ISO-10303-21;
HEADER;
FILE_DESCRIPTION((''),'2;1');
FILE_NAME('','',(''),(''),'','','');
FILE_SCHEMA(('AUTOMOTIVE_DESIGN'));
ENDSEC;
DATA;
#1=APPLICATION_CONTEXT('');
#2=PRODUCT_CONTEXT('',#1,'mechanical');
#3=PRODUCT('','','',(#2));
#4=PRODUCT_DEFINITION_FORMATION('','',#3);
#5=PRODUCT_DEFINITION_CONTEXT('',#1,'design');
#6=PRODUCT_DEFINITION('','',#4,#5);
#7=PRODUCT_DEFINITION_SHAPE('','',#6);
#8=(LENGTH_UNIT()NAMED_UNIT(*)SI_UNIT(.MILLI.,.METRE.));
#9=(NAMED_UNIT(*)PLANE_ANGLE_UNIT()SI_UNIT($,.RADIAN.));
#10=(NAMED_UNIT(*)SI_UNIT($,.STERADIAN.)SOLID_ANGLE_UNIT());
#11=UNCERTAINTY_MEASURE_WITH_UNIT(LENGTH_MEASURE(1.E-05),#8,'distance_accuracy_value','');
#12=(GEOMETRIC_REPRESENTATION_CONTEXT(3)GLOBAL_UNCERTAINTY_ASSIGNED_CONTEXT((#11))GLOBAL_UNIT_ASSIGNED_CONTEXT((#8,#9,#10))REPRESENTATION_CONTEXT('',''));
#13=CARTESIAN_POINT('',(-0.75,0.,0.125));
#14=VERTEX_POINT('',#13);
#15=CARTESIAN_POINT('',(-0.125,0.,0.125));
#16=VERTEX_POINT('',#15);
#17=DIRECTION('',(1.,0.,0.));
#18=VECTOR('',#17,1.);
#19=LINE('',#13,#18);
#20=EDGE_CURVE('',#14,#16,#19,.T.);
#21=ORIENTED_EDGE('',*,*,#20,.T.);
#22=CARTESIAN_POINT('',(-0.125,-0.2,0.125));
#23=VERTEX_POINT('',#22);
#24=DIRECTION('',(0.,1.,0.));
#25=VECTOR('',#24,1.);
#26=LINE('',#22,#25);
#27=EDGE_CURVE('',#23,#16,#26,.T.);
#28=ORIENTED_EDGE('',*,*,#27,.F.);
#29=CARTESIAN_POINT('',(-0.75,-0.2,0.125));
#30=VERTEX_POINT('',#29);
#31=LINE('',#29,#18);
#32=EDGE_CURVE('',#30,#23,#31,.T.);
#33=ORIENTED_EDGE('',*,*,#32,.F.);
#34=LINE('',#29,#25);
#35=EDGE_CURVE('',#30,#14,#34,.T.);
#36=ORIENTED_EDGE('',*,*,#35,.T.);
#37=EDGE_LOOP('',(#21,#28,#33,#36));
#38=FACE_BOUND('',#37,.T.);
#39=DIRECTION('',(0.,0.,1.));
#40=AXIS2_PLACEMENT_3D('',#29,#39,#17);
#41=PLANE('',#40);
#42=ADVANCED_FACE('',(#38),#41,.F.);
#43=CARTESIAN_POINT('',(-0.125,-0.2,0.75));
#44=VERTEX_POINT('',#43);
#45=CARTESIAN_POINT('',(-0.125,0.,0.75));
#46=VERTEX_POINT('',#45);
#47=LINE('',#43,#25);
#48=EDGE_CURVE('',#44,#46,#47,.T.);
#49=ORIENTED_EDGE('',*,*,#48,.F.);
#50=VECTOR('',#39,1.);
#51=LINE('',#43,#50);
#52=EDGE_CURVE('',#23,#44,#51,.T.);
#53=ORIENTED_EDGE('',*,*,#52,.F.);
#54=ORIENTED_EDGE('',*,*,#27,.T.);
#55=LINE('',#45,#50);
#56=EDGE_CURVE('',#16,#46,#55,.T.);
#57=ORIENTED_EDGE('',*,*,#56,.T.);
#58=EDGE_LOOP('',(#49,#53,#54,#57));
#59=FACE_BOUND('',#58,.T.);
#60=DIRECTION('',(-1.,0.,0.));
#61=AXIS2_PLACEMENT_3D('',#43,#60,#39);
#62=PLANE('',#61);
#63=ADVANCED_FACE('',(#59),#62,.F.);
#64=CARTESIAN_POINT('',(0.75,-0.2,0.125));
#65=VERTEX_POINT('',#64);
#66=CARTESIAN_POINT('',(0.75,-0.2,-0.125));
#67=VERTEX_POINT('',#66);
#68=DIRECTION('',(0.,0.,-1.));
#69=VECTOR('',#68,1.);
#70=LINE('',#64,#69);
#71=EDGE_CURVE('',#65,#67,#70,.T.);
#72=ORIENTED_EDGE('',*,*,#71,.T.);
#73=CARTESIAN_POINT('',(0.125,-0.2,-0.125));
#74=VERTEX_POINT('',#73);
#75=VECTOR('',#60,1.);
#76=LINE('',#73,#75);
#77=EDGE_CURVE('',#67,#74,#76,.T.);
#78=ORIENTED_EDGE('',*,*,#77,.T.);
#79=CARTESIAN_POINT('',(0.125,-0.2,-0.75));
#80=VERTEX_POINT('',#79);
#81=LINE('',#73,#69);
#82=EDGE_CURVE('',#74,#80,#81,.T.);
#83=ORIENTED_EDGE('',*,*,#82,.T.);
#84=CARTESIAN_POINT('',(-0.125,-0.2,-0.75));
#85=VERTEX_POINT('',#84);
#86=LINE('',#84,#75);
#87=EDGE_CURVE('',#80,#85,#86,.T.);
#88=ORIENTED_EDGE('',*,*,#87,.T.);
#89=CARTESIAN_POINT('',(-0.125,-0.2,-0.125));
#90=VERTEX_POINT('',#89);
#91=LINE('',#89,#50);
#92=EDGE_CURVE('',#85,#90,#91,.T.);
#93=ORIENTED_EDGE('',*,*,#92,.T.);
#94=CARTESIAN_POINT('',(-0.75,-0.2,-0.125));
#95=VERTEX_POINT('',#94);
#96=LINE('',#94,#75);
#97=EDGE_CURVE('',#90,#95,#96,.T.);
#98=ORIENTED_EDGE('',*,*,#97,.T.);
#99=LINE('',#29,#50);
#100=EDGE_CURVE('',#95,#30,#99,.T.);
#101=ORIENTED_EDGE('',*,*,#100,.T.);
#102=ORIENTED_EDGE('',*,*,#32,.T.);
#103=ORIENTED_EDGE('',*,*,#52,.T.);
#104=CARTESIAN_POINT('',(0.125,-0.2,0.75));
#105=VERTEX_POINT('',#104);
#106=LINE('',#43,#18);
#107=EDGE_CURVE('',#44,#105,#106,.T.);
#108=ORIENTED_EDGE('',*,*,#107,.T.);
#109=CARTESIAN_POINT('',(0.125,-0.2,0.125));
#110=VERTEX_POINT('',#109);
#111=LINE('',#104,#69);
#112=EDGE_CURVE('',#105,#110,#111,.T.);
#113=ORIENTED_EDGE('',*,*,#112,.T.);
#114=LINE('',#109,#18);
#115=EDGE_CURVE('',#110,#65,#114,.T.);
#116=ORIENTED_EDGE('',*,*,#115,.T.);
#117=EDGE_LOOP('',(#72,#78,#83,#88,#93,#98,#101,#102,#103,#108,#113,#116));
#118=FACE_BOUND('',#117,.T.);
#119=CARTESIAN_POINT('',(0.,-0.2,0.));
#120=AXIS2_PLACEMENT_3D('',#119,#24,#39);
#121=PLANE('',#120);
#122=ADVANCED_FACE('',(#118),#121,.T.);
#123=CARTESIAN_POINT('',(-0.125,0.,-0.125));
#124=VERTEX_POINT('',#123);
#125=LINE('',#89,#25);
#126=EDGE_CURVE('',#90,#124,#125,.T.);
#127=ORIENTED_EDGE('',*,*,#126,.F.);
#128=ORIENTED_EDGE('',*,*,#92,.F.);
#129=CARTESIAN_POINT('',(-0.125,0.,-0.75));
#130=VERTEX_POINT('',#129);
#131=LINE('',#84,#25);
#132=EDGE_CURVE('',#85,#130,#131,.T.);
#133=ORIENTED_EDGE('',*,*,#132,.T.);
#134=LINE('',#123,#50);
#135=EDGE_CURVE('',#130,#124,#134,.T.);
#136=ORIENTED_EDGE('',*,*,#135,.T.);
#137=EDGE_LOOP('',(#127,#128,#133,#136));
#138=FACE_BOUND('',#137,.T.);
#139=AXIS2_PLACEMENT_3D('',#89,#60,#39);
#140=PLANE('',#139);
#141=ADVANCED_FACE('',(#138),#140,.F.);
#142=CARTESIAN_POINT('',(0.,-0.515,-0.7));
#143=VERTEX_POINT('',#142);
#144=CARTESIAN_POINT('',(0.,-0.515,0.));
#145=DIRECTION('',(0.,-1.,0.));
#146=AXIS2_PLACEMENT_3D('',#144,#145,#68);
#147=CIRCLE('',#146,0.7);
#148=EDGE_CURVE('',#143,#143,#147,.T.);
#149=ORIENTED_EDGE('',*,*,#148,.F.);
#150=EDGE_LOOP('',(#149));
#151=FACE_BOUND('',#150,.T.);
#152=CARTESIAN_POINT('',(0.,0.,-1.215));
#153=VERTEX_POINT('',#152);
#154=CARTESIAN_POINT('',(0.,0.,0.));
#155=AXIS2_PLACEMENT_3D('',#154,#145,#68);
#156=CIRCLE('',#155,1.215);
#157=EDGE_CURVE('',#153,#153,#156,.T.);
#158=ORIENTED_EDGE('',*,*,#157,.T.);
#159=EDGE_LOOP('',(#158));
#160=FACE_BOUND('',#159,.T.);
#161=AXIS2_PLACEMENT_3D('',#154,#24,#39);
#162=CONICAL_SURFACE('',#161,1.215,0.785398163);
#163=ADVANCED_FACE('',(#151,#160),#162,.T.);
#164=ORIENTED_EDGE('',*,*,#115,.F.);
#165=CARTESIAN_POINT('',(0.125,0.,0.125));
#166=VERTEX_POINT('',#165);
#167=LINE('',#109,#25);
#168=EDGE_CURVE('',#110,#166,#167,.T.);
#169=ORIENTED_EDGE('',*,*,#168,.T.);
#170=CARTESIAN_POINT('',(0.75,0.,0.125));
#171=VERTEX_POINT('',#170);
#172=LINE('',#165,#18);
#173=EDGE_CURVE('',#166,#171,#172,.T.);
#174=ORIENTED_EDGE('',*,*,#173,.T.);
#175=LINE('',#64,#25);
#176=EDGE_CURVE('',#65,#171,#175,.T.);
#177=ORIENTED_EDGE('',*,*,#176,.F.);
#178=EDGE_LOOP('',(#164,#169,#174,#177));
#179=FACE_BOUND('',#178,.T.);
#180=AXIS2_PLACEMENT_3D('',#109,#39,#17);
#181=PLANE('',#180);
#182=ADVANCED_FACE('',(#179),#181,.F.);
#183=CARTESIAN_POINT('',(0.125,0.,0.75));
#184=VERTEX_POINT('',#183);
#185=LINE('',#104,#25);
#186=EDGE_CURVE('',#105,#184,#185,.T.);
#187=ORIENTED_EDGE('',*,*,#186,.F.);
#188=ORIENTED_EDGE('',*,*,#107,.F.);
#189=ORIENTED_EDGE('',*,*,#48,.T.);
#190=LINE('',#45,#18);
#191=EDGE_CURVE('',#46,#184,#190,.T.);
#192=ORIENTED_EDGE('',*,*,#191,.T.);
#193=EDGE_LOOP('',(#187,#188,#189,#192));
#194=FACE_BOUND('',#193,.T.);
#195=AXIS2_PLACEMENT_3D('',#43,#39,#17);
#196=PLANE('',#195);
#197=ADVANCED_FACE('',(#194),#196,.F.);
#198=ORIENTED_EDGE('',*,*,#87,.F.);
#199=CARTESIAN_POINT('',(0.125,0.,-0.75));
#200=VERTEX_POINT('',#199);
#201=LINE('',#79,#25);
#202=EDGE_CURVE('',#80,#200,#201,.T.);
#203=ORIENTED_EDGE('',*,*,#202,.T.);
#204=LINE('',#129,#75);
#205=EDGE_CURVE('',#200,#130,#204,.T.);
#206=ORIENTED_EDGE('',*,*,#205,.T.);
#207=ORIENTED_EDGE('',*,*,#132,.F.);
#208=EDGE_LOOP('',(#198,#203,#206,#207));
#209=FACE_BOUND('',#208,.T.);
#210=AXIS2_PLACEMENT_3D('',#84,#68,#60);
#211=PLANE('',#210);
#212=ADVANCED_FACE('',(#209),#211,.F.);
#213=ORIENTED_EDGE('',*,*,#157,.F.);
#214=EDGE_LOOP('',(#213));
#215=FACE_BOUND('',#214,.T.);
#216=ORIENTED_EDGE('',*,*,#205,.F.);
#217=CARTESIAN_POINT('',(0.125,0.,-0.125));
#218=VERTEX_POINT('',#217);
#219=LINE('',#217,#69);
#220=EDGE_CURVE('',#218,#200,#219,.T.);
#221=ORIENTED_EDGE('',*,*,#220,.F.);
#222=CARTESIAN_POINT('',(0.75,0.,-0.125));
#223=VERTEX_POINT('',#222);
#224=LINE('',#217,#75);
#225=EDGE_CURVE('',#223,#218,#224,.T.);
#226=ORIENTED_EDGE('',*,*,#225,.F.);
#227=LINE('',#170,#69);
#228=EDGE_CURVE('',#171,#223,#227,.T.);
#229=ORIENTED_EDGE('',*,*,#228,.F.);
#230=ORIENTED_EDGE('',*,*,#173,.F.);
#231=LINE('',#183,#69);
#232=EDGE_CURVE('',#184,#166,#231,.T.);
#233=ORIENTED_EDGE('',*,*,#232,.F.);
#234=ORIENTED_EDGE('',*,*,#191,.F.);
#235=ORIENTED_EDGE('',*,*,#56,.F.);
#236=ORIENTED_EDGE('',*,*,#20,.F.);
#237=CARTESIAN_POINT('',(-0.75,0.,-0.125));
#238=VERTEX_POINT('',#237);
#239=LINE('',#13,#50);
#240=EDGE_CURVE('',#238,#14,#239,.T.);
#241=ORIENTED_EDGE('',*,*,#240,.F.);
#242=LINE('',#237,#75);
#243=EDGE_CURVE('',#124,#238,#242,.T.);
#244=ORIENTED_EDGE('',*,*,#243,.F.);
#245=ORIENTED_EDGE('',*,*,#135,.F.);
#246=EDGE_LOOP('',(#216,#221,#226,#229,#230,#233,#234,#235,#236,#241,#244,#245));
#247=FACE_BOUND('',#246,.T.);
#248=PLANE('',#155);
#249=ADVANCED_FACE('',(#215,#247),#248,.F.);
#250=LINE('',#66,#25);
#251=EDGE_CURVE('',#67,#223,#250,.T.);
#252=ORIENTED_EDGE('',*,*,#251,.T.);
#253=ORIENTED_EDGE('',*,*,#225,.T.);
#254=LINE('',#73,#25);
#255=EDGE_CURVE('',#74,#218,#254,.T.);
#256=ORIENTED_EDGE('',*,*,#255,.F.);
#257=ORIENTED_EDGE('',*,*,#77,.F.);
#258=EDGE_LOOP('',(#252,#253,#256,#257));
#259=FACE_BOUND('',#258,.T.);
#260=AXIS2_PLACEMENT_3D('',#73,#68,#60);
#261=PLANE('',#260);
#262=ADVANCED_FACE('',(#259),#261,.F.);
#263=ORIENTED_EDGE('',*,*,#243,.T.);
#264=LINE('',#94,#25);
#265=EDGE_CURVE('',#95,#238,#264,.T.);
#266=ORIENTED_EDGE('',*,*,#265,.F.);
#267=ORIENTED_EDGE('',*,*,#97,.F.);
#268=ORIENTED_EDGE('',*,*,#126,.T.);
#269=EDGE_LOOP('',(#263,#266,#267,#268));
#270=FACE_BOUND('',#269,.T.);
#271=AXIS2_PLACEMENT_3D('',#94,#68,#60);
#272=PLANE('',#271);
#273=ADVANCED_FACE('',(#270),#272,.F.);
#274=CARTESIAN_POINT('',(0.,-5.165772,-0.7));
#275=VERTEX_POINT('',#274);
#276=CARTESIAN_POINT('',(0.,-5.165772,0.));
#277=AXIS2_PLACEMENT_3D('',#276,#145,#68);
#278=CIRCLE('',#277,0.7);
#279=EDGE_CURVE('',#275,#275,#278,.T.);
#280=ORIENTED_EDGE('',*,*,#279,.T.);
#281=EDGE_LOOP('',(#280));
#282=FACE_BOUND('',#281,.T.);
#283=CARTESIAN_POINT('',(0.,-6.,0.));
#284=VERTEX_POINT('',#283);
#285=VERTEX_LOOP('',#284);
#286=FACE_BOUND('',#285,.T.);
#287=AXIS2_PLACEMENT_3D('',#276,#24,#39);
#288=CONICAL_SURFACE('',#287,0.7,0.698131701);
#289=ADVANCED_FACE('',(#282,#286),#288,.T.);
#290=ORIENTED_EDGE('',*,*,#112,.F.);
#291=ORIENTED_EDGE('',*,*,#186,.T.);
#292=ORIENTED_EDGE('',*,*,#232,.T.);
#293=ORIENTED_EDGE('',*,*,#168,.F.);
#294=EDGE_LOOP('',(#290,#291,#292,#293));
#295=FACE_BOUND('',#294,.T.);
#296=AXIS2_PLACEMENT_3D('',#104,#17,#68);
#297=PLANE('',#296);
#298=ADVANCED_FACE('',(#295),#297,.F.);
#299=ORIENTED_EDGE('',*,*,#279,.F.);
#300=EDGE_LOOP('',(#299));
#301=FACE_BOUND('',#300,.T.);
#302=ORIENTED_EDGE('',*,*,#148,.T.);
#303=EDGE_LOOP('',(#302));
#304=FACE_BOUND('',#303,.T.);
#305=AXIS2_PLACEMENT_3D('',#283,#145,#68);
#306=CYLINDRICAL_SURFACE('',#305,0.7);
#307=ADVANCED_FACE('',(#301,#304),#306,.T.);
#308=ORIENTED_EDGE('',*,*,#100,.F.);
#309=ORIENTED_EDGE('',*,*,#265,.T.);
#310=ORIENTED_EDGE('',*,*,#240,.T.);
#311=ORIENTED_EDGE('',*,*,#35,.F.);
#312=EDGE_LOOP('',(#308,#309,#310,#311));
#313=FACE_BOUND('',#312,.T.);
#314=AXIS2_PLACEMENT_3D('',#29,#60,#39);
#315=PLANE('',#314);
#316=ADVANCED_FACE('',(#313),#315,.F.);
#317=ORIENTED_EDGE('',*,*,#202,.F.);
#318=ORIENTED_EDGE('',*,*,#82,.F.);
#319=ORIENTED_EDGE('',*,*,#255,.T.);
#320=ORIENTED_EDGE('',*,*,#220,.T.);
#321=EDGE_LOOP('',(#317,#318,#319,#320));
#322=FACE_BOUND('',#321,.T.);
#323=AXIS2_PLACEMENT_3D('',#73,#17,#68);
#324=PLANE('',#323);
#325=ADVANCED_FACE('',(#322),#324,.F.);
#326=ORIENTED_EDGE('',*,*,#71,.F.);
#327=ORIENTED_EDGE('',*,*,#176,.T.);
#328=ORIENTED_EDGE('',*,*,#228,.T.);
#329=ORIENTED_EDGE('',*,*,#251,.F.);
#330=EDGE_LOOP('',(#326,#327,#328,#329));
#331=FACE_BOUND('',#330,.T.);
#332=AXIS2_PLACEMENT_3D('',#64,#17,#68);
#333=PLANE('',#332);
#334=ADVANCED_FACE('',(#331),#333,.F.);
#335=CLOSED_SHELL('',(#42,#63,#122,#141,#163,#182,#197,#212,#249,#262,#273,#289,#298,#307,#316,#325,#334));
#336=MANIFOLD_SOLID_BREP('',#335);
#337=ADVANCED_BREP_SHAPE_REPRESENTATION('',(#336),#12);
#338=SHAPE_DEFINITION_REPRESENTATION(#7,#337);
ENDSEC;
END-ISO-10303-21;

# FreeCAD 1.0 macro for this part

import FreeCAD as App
import Part
import Sketcher

V = App.Vector
Q = App.Units.Quantity

doc = App.newDocument("Part")
body = doc.addObject("PartDesign::Body", "Body")

sketch1 = body.newObject("Sketcher::SketchObject", "Sketch")
sketch1.AttachmentSupport = (doc.getObject("XY_Plane"), [""])
sketch1.MapMode = "FlatFace"
sketch1.addGeometry([
    Part.LineSegment(V(0, 0, 0), V(-1.2, 0, 0)),
    Part.LineSegment(V(-1.2, 0, 0), V(-0.7, -0.5, 0)),
    Part.LineSegment(V(-0.7, -0.5, 0), V(-0.7, -5.2, 0)),
    Part.LineSegment(V(-0.7, -5.2, 0), V(0, -6, 0)),
    Part.LineSegment(V(0, -6, 0), V(0, 0, 0)),
], False)
sketch1.addConstraint([
    Sketcher.Constraint("Coincident", 0, 2, 1, 1),
    Sketcher.Constraint("Coincident", 1, 2, 2, 1),
    Sketcher.Constraint("Coincident", 2, 2, 3, 1),
    Sketcher.Constraint("Coincident", 3, 2, 4, 1),
    Sketcher.Constraint("Coincident", 4, 2, 0, 1),
    Sketcher.Constraint("Horizontal", 0),
    Sketcher.Constraint("Vertical", 2),
    Sketcher.Constraint("Vertical", 4),
    Sketcher.Constraint("Coincident", 4, 2, -1, 1),
    Sketcher.Constraint("DistanceY", 4, 1, 4, 2, 6.0),
    Sketcher.Constraint("Angle", 1, Q("-45 deg")),
    Sketcher.Constraint("Angle", 3, Q("-50 deg")),
    Sketcher.Constraint("DistanceX", 1, 2, -1, 1, 0.7),
    Sketcher.Constraint("DistanceX", 0, 2, 0, 1, 1.215),
])
revolution = body.newObject("PartDesign::Revolution", "Revolution")
revolution.Profile = sketch1
revolution.ReferenceAxis = (sketch1, ["V_Axis"])
revolution.Angle = 360

sketch2 = body.newObject("Sketcher::SketchObject", "Sketch001")
sketch2.AttachmentSupport = (doc.getObject("XZ_Plane"), [""])
sketch2.MapMode = "FlatFace"
sketch2.addGeometry([
    Part.LineSegment(V(-0.75, 0.12, 0), V(-0.12, 0.12, 0)),
    Part.LineSegment(V(-0.12, 0.12, 0), V(-0.12, 0.75, 0)),
    Part.LineSegment(V(-0.12, 0.75, 0), V(0.12, 0.75, 0)),
    Part.LineSegment(V(0.12, 0.75, 0), V(0.12, 0.12, 0)),
    Part.LineSegment(V(0.12, 0.12, 0), V(0.75, 0.12, 0)),
    Part.LineSegment(V(0.75, 0.12, 0), V(0.75, -0.12, 0)),
    Part.LineSegment(V(0.75, -0.12, 0), V(0.12, -0.12, 0)),
    Part.LineSegment(V(0.12, -0.12, 0), V(0.12, -0.75, 0)),
    Part.LineSegment(V(0.12, -0.75, 0), V(-0.12, -0.75, 0)),
    Part.LineSegment(V(-0.12, -0.75, 0), V(-0.12, -0.12, 0)),
    Part.LineSegment(V(-0.12, -0.12, 0), V(-0.75, -0.12, 0)),
    Part.LineSegment(V(-0.75, -0.12, 0), V(-0.75, 0.12, 0)),
], False)
sketch2.addConstraint([
    Sketcher.Constraint("Coincident", 0, 2, 1, 1),
    Sketcher.Constraint("Coincident", 1, 2, 2, 1),
    Sketcher.Constraint("Coincident", 2, 2, 3, 1),
    Sketcher.Constraint("Coincident", 3, 2, 4, 1),
    Sketcher.Constraint("Coincident", 4, 2, 5, 1),
    Sketcher.Constraint("Coincident", 5, 2, 6, 1),
    Sketcher.Constraint("Coincident", 6, 2, 7, 1),
    Sketcher.Constraint("Coincident", 7, 2, 8, 1),
    Sketcher.Constraint("Coincident", 8, 2, 9, 1),
    Sketcher.Constraint("Coincident", 9, 2, 10, 1),
    Sketcher.Constraint("Coincident", 10, 2, 11, 1),
    Sketcher.Constraint("Coincident", 11, 2, 0, 1),
    Sketcher.Constraint("Horizontal", 0),
    Sketcher.Constraint("Vertical", 1),
    Sketcher.Constraint("Horizontal", 2),
    Sketcher.Constraint("Vertical", 3),
    Sketcher.Constraint("Horizontal", 4),
    Sketcher.Constraint("Vertical", 5),
    Sketcher.Constraint("Horizontal", 6),
    Sketcher.Constraint("Vertical", 7),
    Sketcher.Constraint("Horizontal", 8),
    Sketcher.Constraint("Vertical", 9),
    Sketcher.Constraint("Horizontal", 10),
    Sketcher.Constraint("Vertical", 11),
    Sketcher.Constraint("Symmetric", 0, 2, 6, 2, -1, 1),
    Sketcher.Constraint("Symmetric", 2, 2, 8, 2, -1, 1),
    Sketcher.Constraint("Symmetric", 4, 2, 10, 2, -1, 1),
    Sketcher.Constraint("Symmetric", 0, 2, 3, 2, -2),
    Sketcher.Constraint("Equal", 10, 1),
    Sketcher.Constraint("Equal", 8, 5),
    Sketcher.Constraint("DistanceX", 2, 1, 2, 2, 0.25),
    Sketcher.Constraint("DistanceX", 0, 1, 0, 2, 0.625),
])
pocket1 = body.newObject("PartDesign::Pocket", "Pocket")
pocket1.Profile = sketch2
pocket1.Length = 0.2
pocket1.Reversed = True

doc.recompute()
